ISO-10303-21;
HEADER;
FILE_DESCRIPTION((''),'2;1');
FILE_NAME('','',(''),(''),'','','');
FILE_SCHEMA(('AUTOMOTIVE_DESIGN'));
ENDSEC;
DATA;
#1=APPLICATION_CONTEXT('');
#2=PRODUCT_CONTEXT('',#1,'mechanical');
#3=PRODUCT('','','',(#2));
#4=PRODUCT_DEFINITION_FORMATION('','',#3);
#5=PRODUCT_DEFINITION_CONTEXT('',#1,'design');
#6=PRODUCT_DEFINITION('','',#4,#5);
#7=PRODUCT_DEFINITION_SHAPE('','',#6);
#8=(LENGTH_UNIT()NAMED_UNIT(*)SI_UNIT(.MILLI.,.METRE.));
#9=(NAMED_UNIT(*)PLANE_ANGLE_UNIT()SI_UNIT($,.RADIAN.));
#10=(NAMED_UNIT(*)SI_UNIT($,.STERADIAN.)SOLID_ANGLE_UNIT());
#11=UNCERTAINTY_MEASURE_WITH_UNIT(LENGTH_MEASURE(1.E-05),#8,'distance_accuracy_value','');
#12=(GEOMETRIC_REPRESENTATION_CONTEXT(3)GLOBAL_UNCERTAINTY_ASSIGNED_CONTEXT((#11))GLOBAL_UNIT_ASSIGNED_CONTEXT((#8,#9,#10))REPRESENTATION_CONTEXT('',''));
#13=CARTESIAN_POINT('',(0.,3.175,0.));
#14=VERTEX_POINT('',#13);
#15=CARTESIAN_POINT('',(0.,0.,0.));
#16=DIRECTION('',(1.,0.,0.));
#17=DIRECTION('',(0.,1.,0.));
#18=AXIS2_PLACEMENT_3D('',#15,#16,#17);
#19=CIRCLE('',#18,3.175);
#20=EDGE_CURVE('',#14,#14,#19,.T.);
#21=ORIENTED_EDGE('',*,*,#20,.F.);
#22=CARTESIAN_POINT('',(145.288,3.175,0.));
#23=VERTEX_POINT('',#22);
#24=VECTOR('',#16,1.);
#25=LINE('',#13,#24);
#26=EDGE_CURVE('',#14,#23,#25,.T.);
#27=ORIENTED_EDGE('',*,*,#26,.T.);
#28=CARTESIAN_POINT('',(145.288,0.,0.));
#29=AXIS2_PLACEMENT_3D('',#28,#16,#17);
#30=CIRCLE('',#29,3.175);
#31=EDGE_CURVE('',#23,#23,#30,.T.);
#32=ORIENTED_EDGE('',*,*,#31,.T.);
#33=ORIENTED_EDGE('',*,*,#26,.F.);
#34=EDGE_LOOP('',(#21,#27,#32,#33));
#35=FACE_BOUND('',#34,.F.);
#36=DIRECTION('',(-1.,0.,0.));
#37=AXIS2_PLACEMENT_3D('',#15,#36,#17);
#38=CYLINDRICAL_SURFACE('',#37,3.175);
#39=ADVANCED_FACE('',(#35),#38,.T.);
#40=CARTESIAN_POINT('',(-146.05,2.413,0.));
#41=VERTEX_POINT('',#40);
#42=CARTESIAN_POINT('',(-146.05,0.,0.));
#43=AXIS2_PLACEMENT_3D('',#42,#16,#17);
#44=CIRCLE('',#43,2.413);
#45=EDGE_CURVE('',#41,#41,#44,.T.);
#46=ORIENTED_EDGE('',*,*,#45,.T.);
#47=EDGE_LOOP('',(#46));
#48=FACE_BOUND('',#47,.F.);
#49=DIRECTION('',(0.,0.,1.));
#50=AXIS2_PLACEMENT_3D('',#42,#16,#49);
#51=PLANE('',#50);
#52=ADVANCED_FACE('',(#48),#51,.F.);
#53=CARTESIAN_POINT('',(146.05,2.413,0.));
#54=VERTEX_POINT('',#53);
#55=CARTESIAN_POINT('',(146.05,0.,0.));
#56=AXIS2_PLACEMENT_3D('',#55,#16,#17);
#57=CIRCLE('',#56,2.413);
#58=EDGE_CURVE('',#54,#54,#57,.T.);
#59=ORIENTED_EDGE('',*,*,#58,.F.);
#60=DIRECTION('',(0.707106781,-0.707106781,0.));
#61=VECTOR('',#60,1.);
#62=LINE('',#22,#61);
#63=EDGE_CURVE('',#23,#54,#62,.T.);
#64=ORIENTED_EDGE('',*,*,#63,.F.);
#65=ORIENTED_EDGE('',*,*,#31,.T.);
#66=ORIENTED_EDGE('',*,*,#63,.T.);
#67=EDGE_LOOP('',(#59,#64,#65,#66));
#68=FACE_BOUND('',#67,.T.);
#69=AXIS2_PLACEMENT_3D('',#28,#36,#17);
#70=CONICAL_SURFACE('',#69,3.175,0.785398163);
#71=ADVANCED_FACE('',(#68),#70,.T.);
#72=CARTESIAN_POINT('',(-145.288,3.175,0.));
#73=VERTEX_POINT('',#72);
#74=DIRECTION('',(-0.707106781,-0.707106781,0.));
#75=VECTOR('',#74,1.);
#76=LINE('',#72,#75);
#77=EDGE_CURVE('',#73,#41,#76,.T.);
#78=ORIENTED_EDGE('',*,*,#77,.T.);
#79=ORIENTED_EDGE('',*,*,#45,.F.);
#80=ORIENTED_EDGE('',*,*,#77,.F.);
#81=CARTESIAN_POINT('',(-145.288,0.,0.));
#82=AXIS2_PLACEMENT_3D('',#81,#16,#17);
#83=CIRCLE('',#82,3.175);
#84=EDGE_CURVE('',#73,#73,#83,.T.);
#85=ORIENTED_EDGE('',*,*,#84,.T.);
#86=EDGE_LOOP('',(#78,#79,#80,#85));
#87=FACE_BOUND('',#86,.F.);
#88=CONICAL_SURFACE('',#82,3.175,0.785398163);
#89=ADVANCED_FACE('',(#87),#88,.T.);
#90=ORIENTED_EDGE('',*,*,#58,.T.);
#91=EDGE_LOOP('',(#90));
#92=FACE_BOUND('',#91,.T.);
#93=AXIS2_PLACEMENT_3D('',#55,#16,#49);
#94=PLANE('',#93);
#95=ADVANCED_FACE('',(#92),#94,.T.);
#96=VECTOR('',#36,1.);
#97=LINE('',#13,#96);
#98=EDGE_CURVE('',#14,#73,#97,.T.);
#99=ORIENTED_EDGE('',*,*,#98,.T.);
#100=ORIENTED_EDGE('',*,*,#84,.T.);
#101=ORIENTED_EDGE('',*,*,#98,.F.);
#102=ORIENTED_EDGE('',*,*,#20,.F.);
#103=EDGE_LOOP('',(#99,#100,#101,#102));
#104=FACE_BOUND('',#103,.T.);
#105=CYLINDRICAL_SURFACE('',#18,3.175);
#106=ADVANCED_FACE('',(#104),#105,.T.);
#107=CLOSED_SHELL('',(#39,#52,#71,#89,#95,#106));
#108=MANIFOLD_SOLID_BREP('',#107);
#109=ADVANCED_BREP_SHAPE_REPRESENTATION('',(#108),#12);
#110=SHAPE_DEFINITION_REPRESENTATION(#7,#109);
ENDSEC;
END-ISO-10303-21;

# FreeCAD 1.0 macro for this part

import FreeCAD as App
import Part
import Sketcher
from FreeCAD import Vector
Q = App.Units.Quantity


def edges_at(feature, points):
    """Names of the edges that pass closest to the given points."""
    edges = feature.Shape.Edges
    near = lambda p: min(range(len(edges)), key=lambda i: edges[i].distToShape(Part.Vertex(*p))[0])
    return sorted({f"Edge{near(p) + 1}" for p in points})

doc = App.newDocument("Part")
body = doc.addObject("PartDesign::Body", "Body")

sketch1 = body.newObject("Sketcher::SketchObject", "Sketch")
sketch1.AttachmentSupport = (doc.getObject("YZ_Plane"), [""])
sketch1.MapMode = "FlatFace"
sketch1.addGeometry(Part.Circle(Vector(0, 0, 0), Vector(0, 0, 1), 3.2), False)
sketch1.addConstraint([
    Sketcher.Constraint("Coincident", 0, 3, -1, 1),
    Sketcher.Constraint("Diameter", 0, Q("0.25 in")),
])
pad1 = body.newObject("PartDesign::Pad", "Pad")
pad1.Profile = sketch1
pad1.Length = Q("11.5 in")
pad1.Midplane = True
doc.recompute()

chamfer = body.newObject("PartDesign::Chamfer", "Chamfer")
chamfer.Base = (pad1, edges_at(pad1, [(146.05, -3.175, 0), (-146.05, -3.175, 0)]))
chamfer.Size = Q("0.03 in")

doc.recompute()
